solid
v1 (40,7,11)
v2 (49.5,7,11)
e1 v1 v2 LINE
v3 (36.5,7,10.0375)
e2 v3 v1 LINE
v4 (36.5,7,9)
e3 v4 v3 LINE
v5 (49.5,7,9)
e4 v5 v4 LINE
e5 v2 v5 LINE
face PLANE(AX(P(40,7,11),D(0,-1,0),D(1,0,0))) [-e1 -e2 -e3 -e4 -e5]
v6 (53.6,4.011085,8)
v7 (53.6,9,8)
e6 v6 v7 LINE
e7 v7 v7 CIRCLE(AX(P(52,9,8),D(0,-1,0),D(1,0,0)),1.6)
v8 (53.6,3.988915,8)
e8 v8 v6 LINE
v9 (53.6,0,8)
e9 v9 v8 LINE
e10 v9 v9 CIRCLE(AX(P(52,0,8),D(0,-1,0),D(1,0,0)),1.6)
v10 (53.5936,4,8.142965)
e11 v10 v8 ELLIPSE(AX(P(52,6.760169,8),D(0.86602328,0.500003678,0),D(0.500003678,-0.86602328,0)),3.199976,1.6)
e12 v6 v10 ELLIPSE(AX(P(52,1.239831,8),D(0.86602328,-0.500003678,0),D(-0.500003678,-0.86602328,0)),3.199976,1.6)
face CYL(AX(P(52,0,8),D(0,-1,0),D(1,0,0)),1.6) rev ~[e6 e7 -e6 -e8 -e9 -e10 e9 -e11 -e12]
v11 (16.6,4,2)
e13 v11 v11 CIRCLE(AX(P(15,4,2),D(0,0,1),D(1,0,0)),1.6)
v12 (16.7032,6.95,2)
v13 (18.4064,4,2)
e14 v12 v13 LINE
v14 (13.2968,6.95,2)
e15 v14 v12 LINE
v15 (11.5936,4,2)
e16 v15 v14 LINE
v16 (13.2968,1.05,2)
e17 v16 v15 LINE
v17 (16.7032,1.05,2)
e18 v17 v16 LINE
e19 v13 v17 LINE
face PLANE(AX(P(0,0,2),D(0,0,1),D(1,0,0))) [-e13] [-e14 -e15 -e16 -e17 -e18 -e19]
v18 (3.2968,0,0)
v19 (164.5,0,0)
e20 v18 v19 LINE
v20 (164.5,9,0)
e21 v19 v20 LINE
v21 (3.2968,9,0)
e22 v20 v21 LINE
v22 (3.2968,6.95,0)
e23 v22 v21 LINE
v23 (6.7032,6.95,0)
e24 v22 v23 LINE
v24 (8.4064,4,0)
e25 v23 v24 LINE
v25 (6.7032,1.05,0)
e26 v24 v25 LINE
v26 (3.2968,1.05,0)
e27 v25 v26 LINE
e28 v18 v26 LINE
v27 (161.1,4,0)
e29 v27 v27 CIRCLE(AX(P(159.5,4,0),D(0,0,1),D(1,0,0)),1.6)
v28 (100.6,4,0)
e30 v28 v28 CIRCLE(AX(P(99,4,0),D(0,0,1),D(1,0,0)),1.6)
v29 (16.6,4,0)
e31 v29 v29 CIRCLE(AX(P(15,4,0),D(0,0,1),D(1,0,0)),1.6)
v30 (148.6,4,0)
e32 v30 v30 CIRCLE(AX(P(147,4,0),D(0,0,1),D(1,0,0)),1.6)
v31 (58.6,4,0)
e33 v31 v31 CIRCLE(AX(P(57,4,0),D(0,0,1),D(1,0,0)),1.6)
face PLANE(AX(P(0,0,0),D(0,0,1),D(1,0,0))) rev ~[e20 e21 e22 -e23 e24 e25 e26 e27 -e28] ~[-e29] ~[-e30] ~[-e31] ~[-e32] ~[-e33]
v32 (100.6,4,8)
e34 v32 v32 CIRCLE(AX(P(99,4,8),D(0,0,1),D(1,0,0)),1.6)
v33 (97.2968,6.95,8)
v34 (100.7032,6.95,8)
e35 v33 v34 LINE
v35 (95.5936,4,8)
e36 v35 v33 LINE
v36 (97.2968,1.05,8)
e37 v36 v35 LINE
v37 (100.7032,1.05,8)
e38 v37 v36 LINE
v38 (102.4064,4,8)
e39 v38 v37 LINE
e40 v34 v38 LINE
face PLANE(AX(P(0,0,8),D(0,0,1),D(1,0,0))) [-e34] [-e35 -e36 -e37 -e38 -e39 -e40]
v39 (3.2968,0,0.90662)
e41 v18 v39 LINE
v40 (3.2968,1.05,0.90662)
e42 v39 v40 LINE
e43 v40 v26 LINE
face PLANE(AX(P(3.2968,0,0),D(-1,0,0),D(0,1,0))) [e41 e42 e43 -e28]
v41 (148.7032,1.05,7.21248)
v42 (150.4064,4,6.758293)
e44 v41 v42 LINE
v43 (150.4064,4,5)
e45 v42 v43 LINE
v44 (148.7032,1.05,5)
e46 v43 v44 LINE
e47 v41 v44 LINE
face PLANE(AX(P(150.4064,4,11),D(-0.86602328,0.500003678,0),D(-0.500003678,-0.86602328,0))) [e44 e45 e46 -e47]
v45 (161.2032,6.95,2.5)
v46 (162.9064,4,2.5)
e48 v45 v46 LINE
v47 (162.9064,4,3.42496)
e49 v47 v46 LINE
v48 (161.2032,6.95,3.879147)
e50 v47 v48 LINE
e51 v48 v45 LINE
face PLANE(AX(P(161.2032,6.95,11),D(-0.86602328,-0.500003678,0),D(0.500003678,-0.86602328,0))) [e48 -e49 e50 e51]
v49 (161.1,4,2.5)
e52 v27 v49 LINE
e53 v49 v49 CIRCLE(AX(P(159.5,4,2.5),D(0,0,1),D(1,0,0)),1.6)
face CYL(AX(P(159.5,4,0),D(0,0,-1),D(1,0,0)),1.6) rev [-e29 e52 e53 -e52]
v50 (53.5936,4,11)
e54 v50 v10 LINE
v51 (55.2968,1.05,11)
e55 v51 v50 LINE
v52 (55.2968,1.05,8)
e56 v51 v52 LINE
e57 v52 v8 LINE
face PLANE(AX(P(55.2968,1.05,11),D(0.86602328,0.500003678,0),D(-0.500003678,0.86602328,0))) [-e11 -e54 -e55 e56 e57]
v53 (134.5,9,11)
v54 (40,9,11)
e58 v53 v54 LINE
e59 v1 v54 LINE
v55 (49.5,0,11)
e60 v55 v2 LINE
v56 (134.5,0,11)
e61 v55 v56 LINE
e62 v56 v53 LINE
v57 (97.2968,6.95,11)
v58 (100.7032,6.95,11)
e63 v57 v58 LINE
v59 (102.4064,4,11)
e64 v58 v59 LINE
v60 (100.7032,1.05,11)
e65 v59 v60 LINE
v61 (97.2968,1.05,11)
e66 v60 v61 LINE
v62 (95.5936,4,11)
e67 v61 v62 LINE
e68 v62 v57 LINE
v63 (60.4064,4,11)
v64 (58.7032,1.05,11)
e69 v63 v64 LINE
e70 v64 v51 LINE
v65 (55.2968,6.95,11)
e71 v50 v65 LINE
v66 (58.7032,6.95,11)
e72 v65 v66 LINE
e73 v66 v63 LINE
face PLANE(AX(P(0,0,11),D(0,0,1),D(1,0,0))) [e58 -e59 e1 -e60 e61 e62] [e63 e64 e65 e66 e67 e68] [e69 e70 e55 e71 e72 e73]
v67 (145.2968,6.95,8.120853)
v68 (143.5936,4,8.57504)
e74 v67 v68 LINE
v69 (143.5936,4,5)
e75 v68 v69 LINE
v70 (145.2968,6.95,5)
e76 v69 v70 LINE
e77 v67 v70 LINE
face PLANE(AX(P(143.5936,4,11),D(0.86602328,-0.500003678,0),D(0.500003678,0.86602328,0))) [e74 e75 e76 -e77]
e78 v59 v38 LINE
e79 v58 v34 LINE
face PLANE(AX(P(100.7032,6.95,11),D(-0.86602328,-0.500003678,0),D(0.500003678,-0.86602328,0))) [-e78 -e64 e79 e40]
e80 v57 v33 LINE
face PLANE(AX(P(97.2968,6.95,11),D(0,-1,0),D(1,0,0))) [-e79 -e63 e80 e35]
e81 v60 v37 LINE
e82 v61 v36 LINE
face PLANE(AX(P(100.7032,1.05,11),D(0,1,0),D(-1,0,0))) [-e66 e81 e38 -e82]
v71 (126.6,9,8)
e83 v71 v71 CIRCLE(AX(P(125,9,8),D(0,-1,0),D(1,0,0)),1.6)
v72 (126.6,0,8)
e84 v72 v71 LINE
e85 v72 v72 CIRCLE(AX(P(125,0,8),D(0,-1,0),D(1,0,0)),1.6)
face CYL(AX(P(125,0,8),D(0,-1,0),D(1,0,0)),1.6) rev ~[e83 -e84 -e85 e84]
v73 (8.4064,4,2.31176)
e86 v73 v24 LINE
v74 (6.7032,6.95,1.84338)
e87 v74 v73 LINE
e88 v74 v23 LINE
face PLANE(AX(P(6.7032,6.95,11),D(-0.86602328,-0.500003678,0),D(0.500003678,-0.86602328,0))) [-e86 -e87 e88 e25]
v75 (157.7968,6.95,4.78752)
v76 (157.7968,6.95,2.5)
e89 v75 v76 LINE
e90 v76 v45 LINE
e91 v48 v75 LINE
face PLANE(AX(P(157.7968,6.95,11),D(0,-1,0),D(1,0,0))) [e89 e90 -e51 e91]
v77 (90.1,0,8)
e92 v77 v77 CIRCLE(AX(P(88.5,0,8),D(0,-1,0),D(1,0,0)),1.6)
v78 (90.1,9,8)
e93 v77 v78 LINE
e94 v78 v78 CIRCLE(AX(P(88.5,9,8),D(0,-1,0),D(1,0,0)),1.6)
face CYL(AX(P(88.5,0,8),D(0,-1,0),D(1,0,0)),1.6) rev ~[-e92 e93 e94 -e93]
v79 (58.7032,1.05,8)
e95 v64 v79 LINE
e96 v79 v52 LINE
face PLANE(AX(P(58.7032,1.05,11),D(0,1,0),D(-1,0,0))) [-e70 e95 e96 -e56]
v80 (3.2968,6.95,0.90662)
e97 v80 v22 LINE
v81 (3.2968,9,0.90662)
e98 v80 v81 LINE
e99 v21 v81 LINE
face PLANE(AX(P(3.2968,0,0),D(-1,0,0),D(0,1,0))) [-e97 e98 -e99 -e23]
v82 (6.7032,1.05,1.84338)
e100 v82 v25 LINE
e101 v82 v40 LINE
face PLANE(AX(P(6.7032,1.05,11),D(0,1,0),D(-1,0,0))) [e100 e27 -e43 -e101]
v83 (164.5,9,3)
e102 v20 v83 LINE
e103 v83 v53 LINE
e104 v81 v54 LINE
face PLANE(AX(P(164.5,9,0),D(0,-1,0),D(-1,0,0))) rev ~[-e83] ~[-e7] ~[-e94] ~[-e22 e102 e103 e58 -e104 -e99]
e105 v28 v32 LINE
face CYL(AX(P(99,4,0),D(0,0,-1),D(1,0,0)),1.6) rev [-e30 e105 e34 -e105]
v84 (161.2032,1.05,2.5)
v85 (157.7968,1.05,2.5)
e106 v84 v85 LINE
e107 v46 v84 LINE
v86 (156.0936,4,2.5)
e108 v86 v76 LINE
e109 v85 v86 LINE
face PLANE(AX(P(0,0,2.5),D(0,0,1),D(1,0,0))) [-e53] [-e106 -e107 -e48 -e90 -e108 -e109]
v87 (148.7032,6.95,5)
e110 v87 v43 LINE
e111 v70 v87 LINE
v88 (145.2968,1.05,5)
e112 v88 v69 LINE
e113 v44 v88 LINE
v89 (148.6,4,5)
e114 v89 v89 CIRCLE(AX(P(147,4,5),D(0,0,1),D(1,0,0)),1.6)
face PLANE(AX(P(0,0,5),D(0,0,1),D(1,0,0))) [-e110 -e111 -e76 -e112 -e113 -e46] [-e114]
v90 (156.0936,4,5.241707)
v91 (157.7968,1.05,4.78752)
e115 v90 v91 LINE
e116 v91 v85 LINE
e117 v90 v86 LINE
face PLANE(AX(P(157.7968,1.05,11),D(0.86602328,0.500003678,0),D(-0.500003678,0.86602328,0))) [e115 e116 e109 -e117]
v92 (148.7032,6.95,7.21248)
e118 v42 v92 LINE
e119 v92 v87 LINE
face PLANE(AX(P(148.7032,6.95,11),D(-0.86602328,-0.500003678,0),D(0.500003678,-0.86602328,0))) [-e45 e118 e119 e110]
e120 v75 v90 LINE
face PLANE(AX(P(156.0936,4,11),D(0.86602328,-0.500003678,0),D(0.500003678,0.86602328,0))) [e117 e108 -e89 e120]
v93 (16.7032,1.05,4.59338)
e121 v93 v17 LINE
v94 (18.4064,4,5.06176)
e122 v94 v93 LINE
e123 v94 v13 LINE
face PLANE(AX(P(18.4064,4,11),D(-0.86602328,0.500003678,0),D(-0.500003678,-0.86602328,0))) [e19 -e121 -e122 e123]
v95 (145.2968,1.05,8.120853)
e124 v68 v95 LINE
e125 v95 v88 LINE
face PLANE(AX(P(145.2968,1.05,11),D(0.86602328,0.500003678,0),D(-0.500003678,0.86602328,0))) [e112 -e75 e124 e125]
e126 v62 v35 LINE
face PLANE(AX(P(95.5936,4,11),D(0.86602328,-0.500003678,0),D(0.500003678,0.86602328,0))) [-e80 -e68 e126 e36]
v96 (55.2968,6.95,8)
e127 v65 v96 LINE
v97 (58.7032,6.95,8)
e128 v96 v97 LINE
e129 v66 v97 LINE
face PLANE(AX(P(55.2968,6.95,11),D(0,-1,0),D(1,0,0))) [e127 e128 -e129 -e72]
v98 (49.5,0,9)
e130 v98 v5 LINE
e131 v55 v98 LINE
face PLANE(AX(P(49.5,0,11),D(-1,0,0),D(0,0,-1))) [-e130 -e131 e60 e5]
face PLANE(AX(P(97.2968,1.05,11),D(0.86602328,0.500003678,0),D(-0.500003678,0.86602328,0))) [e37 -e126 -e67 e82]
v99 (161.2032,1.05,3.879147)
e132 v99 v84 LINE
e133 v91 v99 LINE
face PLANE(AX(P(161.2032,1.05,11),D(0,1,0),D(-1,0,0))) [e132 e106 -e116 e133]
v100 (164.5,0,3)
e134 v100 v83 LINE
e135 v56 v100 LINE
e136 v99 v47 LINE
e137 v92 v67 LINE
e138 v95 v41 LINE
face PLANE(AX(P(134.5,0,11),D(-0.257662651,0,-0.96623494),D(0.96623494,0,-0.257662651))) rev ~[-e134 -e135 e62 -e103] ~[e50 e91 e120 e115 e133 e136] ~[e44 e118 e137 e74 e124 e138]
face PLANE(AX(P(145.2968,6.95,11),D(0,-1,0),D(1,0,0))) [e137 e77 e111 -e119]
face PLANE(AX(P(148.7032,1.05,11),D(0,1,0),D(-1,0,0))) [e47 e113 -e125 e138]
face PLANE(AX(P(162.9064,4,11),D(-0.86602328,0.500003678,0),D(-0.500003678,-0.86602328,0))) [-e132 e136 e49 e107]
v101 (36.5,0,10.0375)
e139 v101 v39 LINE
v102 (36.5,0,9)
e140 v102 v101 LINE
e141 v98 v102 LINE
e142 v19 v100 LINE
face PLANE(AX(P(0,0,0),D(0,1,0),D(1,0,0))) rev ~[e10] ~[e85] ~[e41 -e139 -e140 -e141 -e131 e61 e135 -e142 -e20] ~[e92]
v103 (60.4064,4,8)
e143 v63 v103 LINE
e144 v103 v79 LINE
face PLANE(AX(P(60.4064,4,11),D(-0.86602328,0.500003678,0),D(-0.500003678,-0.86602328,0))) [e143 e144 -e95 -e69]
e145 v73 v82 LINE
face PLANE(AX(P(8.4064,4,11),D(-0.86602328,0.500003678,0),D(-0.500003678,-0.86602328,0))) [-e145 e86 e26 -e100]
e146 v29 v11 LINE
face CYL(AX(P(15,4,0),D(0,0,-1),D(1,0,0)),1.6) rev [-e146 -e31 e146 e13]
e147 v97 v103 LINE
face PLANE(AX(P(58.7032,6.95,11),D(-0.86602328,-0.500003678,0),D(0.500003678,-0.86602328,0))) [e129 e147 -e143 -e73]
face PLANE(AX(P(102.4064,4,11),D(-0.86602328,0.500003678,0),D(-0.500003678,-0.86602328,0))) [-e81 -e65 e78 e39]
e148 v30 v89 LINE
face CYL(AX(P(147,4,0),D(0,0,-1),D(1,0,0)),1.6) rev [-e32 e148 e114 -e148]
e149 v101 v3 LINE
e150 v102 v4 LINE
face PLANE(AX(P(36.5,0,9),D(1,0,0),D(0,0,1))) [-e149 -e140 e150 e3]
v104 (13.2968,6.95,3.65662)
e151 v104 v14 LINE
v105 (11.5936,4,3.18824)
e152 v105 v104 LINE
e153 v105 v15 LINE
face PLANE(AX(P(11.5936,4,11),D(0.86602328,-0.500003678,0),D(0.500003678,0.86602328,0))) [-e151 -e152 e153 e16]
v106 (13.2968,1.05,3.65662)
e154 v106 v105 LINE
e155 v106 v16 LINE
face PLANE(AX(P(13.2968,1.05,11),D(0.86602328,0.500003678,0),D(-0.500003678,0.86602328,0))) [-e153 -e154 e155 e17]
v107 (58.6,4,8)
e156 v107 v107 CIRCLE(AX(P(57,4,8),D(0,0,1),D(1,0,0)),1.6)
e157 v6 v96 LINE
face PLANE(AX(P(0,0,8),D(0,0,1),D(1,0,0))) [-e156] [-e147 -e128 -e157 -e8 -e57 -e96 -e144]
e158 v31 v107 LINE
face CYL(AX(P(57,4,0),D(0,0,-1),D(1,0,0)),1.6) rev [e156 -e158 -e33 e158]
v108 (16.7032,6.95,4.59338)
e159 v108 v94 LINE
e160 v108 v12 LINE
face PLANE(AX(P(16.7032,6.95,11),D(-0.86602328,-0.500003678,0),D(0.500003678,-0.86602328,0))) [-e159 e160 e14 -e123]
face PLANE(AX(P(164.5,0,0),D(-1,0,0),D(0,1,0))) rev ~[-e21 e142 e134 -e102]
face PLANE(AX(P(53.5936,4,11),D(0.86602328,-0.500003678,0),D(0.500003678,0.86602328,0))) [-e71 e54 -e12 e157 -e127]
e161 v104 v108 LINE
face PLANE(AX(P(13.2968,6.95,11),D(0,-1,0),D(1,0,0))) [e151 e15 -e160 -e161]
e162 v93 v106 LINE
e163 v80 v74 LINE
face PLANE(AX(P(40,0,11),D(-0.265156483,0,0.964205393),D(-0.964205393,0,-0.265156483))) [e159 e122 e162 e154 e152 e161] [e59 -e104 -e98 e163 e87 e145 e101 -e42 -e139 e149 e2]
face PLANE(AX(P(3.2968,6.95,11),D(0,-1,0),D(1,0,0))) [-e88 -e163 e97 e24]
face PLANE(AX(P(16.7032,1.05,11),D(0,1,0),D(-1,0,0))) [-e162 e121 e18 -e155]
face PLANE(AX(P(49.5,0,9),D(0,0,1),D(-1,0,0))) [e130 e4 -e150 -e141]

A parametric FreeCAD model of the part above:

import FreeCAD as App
import Part
import Sketcher

V = App.Vector
Q = App.Units.Quantity

doc = App.newDocument("Part")
body = doc.addObject("PartDesign::Body", "Body")

# Sketch on XY plane
sketch1 = doc.addObject("Sketcher::SketchObject", "Sketch")
body.addObject(sketch1)
sketch1.AttachmentSupport = (doc.XY_Plane, [""])
sketch1.MapMode = "FlatFace"
sketch1.addGeometry(Part.LineSegment(V(0, 9, 0), V(0, 0, 0)), False)
sketch1.addGeometry(Part.LineSegment(V(0, 0, 0), V(164.5, 0, 0)), False)
sketch1.addGeometry(Part.LineSegment(V(164.5, 0, 0), V(164.5, 9, 0)), False)
sketch1.addGeometry(Part.LineSegment(V(164.5, 9, 0), V(0, 9, 0)), False)
sketch1.addGeometry(Part.Circle(V(5, 4, 0), V(0, 0, 1), 1.6), False)
sketch1.addGeometry(Part.Circle(V(15, 4, 0), V(0, 0, 1), 1.6), False)
sketch1.addGeometry(Part.Circle(V(57, 4, 0), V(0, 0, 1), 1.6), False)
sketch1.addGeometry(Part.Circle(V(99, 4, 0), V(0, 0, 1), 1.6), False)
sketch1.addGeometry(Part.Circle(V(147, 4, 0), V(0, 0, 1), 1.6), False)
sketch1.addGeometry(Part.Circle(V(159.5, 4, 0), V(0, 0, 1), 1.6), False)
sketch1.addConstraint(Sketcher.Constraint("Coincident", 0, 2, 1, 1))
sketch1.addConstraint(Sketcher.Constraint("Coincident", 1, 2, 2, 1))
sketch1.addConstraint(Sketcher.Constraint("Coincident", 2, 2, 3, 1))
sketch1.addConstraint(Sketcher.Constraint("Coincident", 3, 2, 0, 1))
sketch1.addConstraint(Sketcher.Constraint("Vertical", 0))
sketch1.addConstraint(Sketcher.Constraint("Horizontal", 1))
sketch1.addConstraint(Sketcher.Constraint("Vertical", 2))
sketch1.addConstraint(Sketcher.Constraint("Horizontal", 3))
sketch1.addConstraint(Sketcher.Constraint("Coincident", 0, 2, -1, 1))
sketch1.addConstraint(Sketcher.Constraint("Equal", 4, 5))
sketch1.addConstraint(Sketcher.Constraint("Equal", 5, 6))
sketch1.addConstraint(Sketcher.Constraint("Equal", 6, 7))
sketch1.addConstraint(Sketcher.Constraint("Equal", 7, 8))
sketch1.addConstraint(Sketcher.Constraint("Equal", 8, 9))
sketch1.addConstraint(Sketcher.Constraint("Horizontal", 4, 3, 5, 3))
sketch1.addConstraint(Sketcher.Constraint("Horizontal", 5, 3, 6, 3))
sketch1.addConstraint(Sketcher.Constraint("Horizontal", 6, 3, 7, 3))
sketch1.addConstraint(Sketcher.Constraint("Horizontal", 7, 3, 8, 3))
sketch1.addConstraint(Sketcher.Constraint("Horizontal", 8, 3, 9, 3))
sketch1.addConstraint(Sketcher.Constraint("Diameter", 4, Q("3.2 mm")))
sketch1.addConstraint(Sketcher.Constraint("DistanceY", 0, 2, 0, 1, Q("9 mm")))
sketch1.addConstraint(Sketcher.Constraint("DistanceX", -1, 1, 4, 3, Q("5 mm")))
sketch1.addConstraint(Sketcher.Constraint("DistanceY", -1, 1, 4, 3, Q("4 mm")))
sketch1.addConstraint(Sketcher.Constraint("DistanceX", -1, 1, 5, 3, Q("15 mm")))
sketch1.addConstraint(Sketcher.Constraint("DistanceX", 5, 3, 6, 3, Q("42 mm")))
sketch1.addConstraint(Sketcher.Constraint("DistanceX", 6, 3, 7, 3, Q("42 mm")))
sketch1.addConstraint(Sketcher.Constraint("DistanceX", 7, 3, 8, 3, Q("48 mm")))
sketch1.addConstraint(Sketcher.Constraint("DistanceX", 9, 3, 1, 2, Q("5 mm")))
sketch1.addConstraint(Sketcher.Constraint("DistanceX", 8, 3, 9, 3, Q("12.5 mm")))
pad1 = doc.addObject("PartDesign::Pad", "Pad")
body.addObject(pad1)
pad1.Profile = sketch1
pad1.Length = 11

# Sketch on XZ plane
sketch2 = doc.addObject("Sketcher::SketchObject", "Sketch001")
body.addObject(sketch2)
sketch2.AttachmentSupport = (doc.XZ_Plane, [""])
sketch2.MapMode = "FlatFace"
sketch2.addGeometry(Part.Circle(V(52, 8, 0), V(0, 0, 1), 1.6), False)
sketch2.addGeometry(Part.Circle(V(125, 8, 0), V(0, 0, 1), 1.6), False)
sketch2.addGeometry(Part.Circle(V(88.5, 8, 0), V(0, 0, 1), 1.6), False)
sketch2.addConstraint(Sketcher.Constraint("Equal", 0, 1))
sketch2.addConstraint(Sketcher.Constraint("Equal", 1, 2))
sketch2.addConstraint(Sketcher.Constraint("Horizontal", 0, 3, 1, 3))
sketch2.addConstraint(Sketcher.Constraint("Horizontal", 1, 3, 2, 3))
sketch2.addConstraint(Sketcher.Constraint("Diameter", 0, Q("3.2 mm")))
sketch2.addConstraint(Sketcher.Constraint("DistanceX", -1, 1, 0, 3, Q("52 mm")))
sketch2.addConstraint(Sketcher.Constraint("DistanceY", -1, 1, 0, 3, Q("8 mm")))
sketch2.addConstraint(Sketcher.Constraint("DistanceX", 0, 3, 1, 3, Q("73 mm")))
sketch2.addConstraint(Sketcher.Constraint("DistanceX", 0, 3, 2, 3, Q("36.5 mm")))
pocket1 = doc.addObject("PartDesign::Pocket", "Pocket")
body.addObject(pocket1)
pocket1.Profile = sketch2
pocket1.Type = "UpToFirst"

# Sketch on XZ plane
sketch3 = doc.addObject("Sketcher::SketchObject", "Sketch002")
body.addObject(sketch3)
sketch3.AttachmentSupport = (doc.XZ_Plane, [""])
sketch3.MapMode = "FlatFace"
sketch3.addGeometry(Part.LineSegment(V(40, 11, 0), V(0, 11, 0)), False)
sketch3.addGeometry(Part.LineSegment(V(0, 11, 0), V(0, 0, 0)), False)
sketch3.addGeometry(Part.LineSegment(V(0, 0, 0), V(40, 11, 0)), False)
sketch3.addConstraint(Sketcher.Constraint("Coincident", 0, 2, 1, 1))
sketch3.addConstraint(Sketcher.Constraint("Coincident", 1, 2, 2, 1))
sketch3.addConstraint(Sketcher.Constraint("Coincident", 2, 2, 0, 1))
sketch3.addConstraint(Sketcher.Constraint("Horizontal", 0))
sketch3.addConstraint(Sketcher.Constraint("Vertical", 1))
sketch3.addConstraint(Sketcher.Constraint("Coincident", 1, 2, -1, 1))
sketch3.addConstraint(Sketcher.Constraint("DistanceX", 0, 2, 0, 1, Q("40 mm")))
sketch3.addConstraint(Sketcher.Constraint("DistanceY", 1, 2, 1, 1, Q("11 mm")))
pocket2 = doc.addObject("PartDesign::Pocket", "Pocket001")
body.addObject(pocket2)
pocket2.Profile = sketch3
pocket2.Type = "UpToFirst"

# Sketch on XZ plane
sketch4 = doc.addObject("Sketcher::SketchObject", "Sketch003")
body.addObject(sketch4)
sketch4.AttachmentSupport = (doc.XZ_Plane, [""])
sketch4.MapMode = "FlatFace"
sketch4.addGeometry(Part.LineSegment(V(134.5, 11, 0), V(164.5, 3, 0)), False)
sketch4.addGeometry(Part.LineSegment(V(164.5, 3, 0), V(164.5, 11, 0)), False)
sketch4.addGeometry(Part.LineSegment(V(164.5, 11, 0), V(134.5, 11, 0)), False)
sketch4.addConstraint(Sketcher.Constraint("Coincident", 0, 2, 1, 1))
sketch4.addConstraint(Sketcher.Constraint("Coincident", 1, 2, 2, 1))
sketch4.addConstraint(Sketcher.Constraint("Coincident", 2, 2, 0, 1))
sketch4.addConstraint(Sketcher.Constraint("Vertical", 1))
sketch4.addConstraint(Sketcher.Constraint("Horizontal", 2))
sketch4.addConstraint(Sketcher.Constraint("DistanceX", 2, 2, 2, 1, Q("30 mm")))
sketch4.addConstraint(Sketcher.Constraint("DistanceY", 1, 1, 1, 2, Q("8 mm")))
sketch4.addConstraint(Sketcher.Constraint("DistanceY", -1, 1, 0, 2, Q("3 mm")))
sketch4.addConstraint(Sketcher.Constraint("DistanceX", -1, 1, 0, 2, Q("164.5 mm")))
pocket3 = doc.addObject("PartDesign::Pocket", "Pocket002")
body.addObject(pocket3)
pocket3.Profile = sketch4
pocket3.Type = "UpToFirst"

# Sketch on XY plane
sketch5 = doc.addObject("Sketcher::SketchObject", "Sketch004")
body.addObject(sketch5)
sketch5.AttachmentSupport = (doc.XY_Plane, [""])
sketch5.MapMode = "FlatFace"
sketch5.AttachmentOffset = App.Placement(V(0, 0, 11), App.Rotation())
sketch5.addGeometry(Part.LineSegment(V(97.2968, 6.95, 0), V(95.5936, 4, 0)), False)
sketch5.addGeometry(Part.LineSegment(V(95.5936, 4, 0), V(97.2968, 1.05, 0)), False)
sketch5.addGeometry(Part.LineSegment(V(97.2968, 1.05, 0), V(100.7032, 1.05, 0)), False)
sketch5.addGeometry(Part.LineSegment(V(100.7032, 1.05, 0), V(102.4064, 4, 0)), False)
sketch5.addGeometry(Part.LineSegment(V(102.4064, 4, 0), V(100.7032, 6.95, 0)), False)
sketch5.addGeometry(Part.LineSegment(V(100.7032, 6.95, 0), V(97.2968, 6.95, 0)), False)
sketch5.addGeometry(Part.Circle(V(99, 4, 0), V(0, 0, 1), 1.6), False)
sketch5.addGeometry(Part.LineSegment(V(58.7032, 1.05, 0), V(60.4064, 4, 0)), False)
sketch5.addGeometry(Part.LineSegment(V(60.4064, 4, 0), V(58.7032, 6.95, 0)), False)
sketch5.addGeometry(Part.LineSegment(V(58.7032, 6.95, 0), V(55.2968, 6.95, 0)), False)
sketch5.addGeometry(Part.LineSegment(V(55.2968, 6.95, 0), V(53.5936, 4, 0)), False)
sketch5.addGeometry(Part.LineSegment(V(53.5936, 4, 0), V(55.2968, 1.05, 0)), False)
sketch5.addGeometry(Part.LineSegment(V(55.2968, 1.05, 0), V(58.7032, 1.05, 0)), False)
sketch5.addGeometry(Part.Circle(V(57, 4, 0), V(0, 0, 1), 1.6), False)
sketch5.addConstraint(Sketcher.Constraint("Coincident", 0, 2, 1, 1))
sketch5.addConstraint(Sketcher.Constraint("Coincident", 1, 2, 2, 1))
sketch5.addConstraint(Sketcher.Constraint("Coincident", 2, 2, 3, 1))
sketch5.addConstraint(Sketcher.Constraint("Coincident", 3, 2, 4, 1))
sketch5.addConstraint(Sketcher.Constraint("Coincident", 4, 2, 5, 1))
sketch5.addConstraint(Sketcher.Constraint("Coincident", 5, 2, 0, 1))
sketch5.addConstraint(Sketcher.Constraint("Coincident", 7, 2, 8, 1))
sketch5.addConstraint(Sketcher.Constraint("Coincident", 8, 2, 9, 1))
sketch5.addConstraint(Sketcher.Constraint("Coincident", 9, 2, 10, 1))
sketch5.addConstraint(Sketcher.Constraint("Coincident", 10, 2, 11, 1))
sketch5.addConstraint(Sketcher.Constraint("Coincident", 11, 2, 12, 1))
sketch5.addConstraint(Sketcher.Constraint("Coincident", 12, 2, 7, 1))
sketch5.addConstraint(Sketcher.Constraint("Horizontal", 2))
sketch5.addConstraint(Sketcher.Constraint("Horizontal", 5))
sketch5.addConstraint(Sketcher.Constraint("Horizontal", 9))
sketch5.addConstraint(Sketcher.Constraint("Horizontal", 12))
sketch5.addConstraint(Sketcher.Constraint("Equal", 6, 13))
sketch5.addConstraint(Sketcher.Constraint("Parallel", 0, 3))
sketch5.addConstraint(Sketcher.Constraint("Parallel", 1, 4))
sketch5.addConstraint(Sketcher.Constraint("Parallel", 3, 7))
sketch5.addConstraint(Sketcher.Constraint("Parallel", 4, 8))
sketch5.addConstraint(Sketcher.Constraint("Parallel", 7, 10))
sketch5.addConstraint(Sketcher.Constraint("Parallel", 8, 11))
sketch5.addConstraint(Sketcher.Constraint("Horizontal", 6, 3, 13, 3))
sketch5.addConstraint(Sketcher.Constraint("Horizontal", 13, 3, 0, 2))
sketch5.addConstraint(Sketcher.Constraint("Horizontal", 0, 2, 3, 2))
sketch5.addConstraint(Sketcher.Constraint("Horizontal", 3, 2, 7, 2))
sketch5.addConstraint(Sketcher.Constraint("Horizontal", 5, 2, 8, 2))
sketch5.addConstraint(Sketcher.Constraint("Horizontal", 7, 2, 10, 2))
sketch5.addConstraint(Sketcher.Constraint("Horizontal", 2, 2, 11, 2))
sketch5.addConstraint(Sketcher.Constraint("Vertical", 2, 2, 4, 2))
sketch5.addConstraint(Sketcher.Constraint("Vertical", 1, 2, 5, 2))
sketch5.addConstraint(Sketcher.Constraint("Equal", 5, 9))
sketch5.addConstraint(Sketcher.Constraint("Diameter", 6, Q("3.2 mm")))
sketch5.addConstraint(Sketcher.Constraint("DistanceY", 2, 2, 4, 2, Q("5.9 mm")))
sketch5.addConstraint(Sketcher.Constraint("Angle", 0, Q("-120.0002 deg")))
sketch5.addConstraint(Sketcher.Constraint("DistanceX", -1, 1, 6, 3, Q("99 mm")))
sketch5.addConstraint(Sketcher.Constraint("DistanceY", -1, 1, 6, 3, Q("4 mm")))
sketch5.addConstraint(Sketcher.Constraint("DistanceX", -1, 1, 13, 3, Q("57 mm")))
sketch5.addConstraint(Sketcher.Constraint("DistanceX", 9, 2, 5, 2, Q("42 mm")))
sketch5.addConstraint(Sketcher.Constraint("DistanceX", 2, 1, 2, 2, Q("3.4064 mm")))
sketch5.addConstraint(Sketcher.Constraint("DistanceX", -1, 1, 0, 2, Q("95.5936 mm")))
pocket4 = doc.addObject("PartDesign::Pocket", "Pocket003")
body.addObject(pocket4)
pocket4.Profile = sketch5
pocket4.Length = 3

# Sketch on XY plane
sketch6 = doc.addObject("Sketcher::SketchObject", "Sketch005")
body.addObject(sketch6)
sketch6.AttachmentSupport = (doc.XY_Plane, [""])
sketch6.MapMode = "FlatFace"
sketch6.AttachmentOffset = App.Placement(V(0, 0, 11), App.Rotation())
sketch6.addGeometry(Part.LineSegment(V(148.7032, 1.05, 0), V(150.4064, 4, 0)), False)
sketch6.addGeometry(Part.LineSegment(V(150.4064, 4, 0), V(148.7032, 6.95, 0)), False)
sketch6.addGeometry(Part.LineSegment(V(148.7032, 6.95, 0), V(145.2968, 6.95, 0)), False)
sketch6.addGeometry(Part.LineSegment(V(145.2968, 6.95, 0), V(143.5936, 4, 0)), False)
sketch6.addGeometry(Part.LineSegment(V(143.5936, 4, 0), V(145.2968, 1.05, 0)), False)
sketch6.addGeometry(Part.LineSegment(V(145.2968, 1.05, 0), V(148.7032, 1.05, 0)), False)
sketch6.addGeometry(Part.Circle(V(147, 4, 0), V(0, 0, 1), 1.6), False)
sketch6.addConstraint(Sketcher.Constraint("Coincident", 0, 2, 1, 1))
sketch6.addConstraint(Sketcher.Constraint("Coincident", 1, 2, 2, 1))
sketch6.addConstraint(Sketcher.Constraint("Coincident", 2, 2, 3, 1))
sketch6.addConstraint(Sketcher.Constraint("Coincident", 3, 2, 4, 1))
sketch6.addConstraint(Sketcher.Constraint("Coincident", 4, 2, 5, 1))
sketch6.addConstraint(Sketcher.Constraint("Coincident", 5, 2, 0, 1))
sketch6.addConstraint(Sketcher.Constraint("Horizontal", 2))
sketch6.addConstraint(Sketcher.Constraint("Horizontal", 5))
sketch6.addConstraint(Sketcher.Constraint("Parallel", 0, 3))
sketch6.addConstraint(Sketcher.Constraint("Parallel", 1, 4))
sketch6.addConstraint(Sketcher.Constraint("Horizontal", 6, 3, 0, 2))
sketch6.addConstraint(Sketcher.Constraint("Horizontal", 0, 2, 3, 2))
sketch6.addConstraint(Sketcher.Constraint("Vertical", 2, 2, 4, 2))
sketch6.addConstraint(Sketcher.Constraint("Vertical", 1, 2, 5, 2))
sketch6.addConstraint(Sketcher.Constraint("Diameter", 6, Q("3.2 mm")))
sketch6.addConstraint(Sketcher.Constraint("DistanceY", 4, 2, 2, 2, Q("5.9 mm")))
sketch6.addConstraint(Sketcher.Constraint("Angle", 0, Q("59.9998 deg")))
sketch6.addConstraint(Sketcher.Constraint("DistanceX", -1, 1, 6, 3, Q("147 mm")))
sketch6.addConstraint(Sketcher.Constraint("DistanceY", -1, 1, 6, 3, Q("4 mm")))
sketch6.addConstraint(Sketcher.Constraint("DistanceX", 2, 2, 2, 1, Q("3.4064 mm")))
sketch6.addConstraint(Sketcher.Constraint("DistanceX", -1, 1, 0, 2, Q("150.4064 mm")))
pocket5 = doc.addObject("PartDesign::Pocket", "Pocket004")
body.addObject(pocket5)
pocket5.Profile = sketch6
pocket5.Length = 6

# Sketch on XY plane
sketch7 = doc.addObject("Sketcher::SketchObject", "Sketch006")
body.addObject(sketch7)
sketch7.AttachmentSupport = (doc.XY_Plane, [""])
sketch7.MapMode = "FlatFace"
sketch7.AttachmentOffset = App.Placement(V(0, 0, 11), App.Rotation())
sketch7.addGeometry(Part.LineSegment(V(161.2032, 1.05, 0), V(162.9064, 4, 0)), False)
sketch7.addGeometry(Part.LineSegment(V(162.9064, 4, 0), V(161.2032, 6.95, 0)), False)
sketch7.addGeometry(Part.LineSegment(V(161.2032, 6.95, 0), V(157.7968, 6.95, 0)), False)
sketch7.addGeometry(Part.LineSegment(V(157.7968, 6.95, 0), V(156.0936, 4, 0)), False)
sketch7.addGeometry(Part.LineSegment(V(156.0936, 4, 0), V(157.7968, 1.05, 0)), False)
sketch7.addGeometry(Part.LineSegment(V(157.7968, 1.05, 0), V(161.2032, 1.05, 0)), False)
sketch7.addGeometry(Part.Circle(V(159.5, 4, 0), V(0, 0, 1), 1.6), False)
sketch7.addConstraint(Sketcher.Constraint("Coincident", 0, 2, 1, 1))
sketch7.addConstraint(Sketcher.Constraint("Coincident", 1, 2, 2, 1))
sketch7.addConstraint(Sketcher.Constraint("Coincident", 2, 2, 3, 1))
sketch7.addConstraint(Sketcher.Constraint("Coincident", 3, 2, 4, 1))
sketch7.addConstraint(Sketcher.Constraint("Coincident", 4, 2, 5, 1))
sketch7.addConstraint(Sketcher.Constraint("Coincident", 5, 2, 0, 1))
sketch7.addConstraint(Sketcher.Constraint("Horizontal", 2))
sketch7.addConstraint(Sketcher.Constraint("Horizontal", 5))
sketch7.addConstraint(Sketcher.Constraint("Parallel", 0, 3))
sketch7.addConstraint(Sketcher.Constraint("Parallel", 1, 4))
sketch7.addConstraint(Sketcher.Constraint("Horizontal", 6, 3, 0, 2))
sketch7.addConstraint(Sketcher.Constraint("Horizontal", 0, 2, 3, 2))
sketch7.addConstraint(Sketcher.Constraint("Vertical", 2, 2, 4, 2))
sketch7.addConstraint(Sketcher.Constraint("Vertical", 1, 2, 5, 2))
sketch7.addConstraint(Sketcher.Constraint("Diameter", 6, Q("3.2 mm")))
sketch7.addConstraint(Sketcher.Constraint("DistanceY", 4, 2, 2, 2, Q("5.9 mm")))
sketch7.addConstraint(Sketcher.Constraint("Angle", 0, Q("59.9998 deg")))
sketch7.addConstraint(Sketcher.Constraint("DistanceY", -1, 1, 6, 3, Q("4 mm")))
sketch7.addConstraint(Sketcher.Constraint("DistanceX", -1, 1, 6, 3, Q("159.5 mm")))
sketch7.addConstraint(Sketcher.Constraint("DistanceX", 2, 2, 2, 1, Q("3.4064 mm")))
sketch7.addConstraint(Sketcher.Constraint("DistanceX", -1, 1, 0, 2, Q("162.9064 mm")))
pocket6 = doc.addObject("PartDesign::Pocket", "Pocket005")
body.addObject(pocket6)
pocket6.Profile = sketch7
pocket6.Length = 8.5

# Sketch on XY plane
sketch8 = doc.addObject("Sketcher::SketchObject", "Sketch007")
body.addObject(sketch8)
sketch8.AttachmentSupport = (doc.XY_Plane, [""])
sketch8.MapMode = "FlatFace"
sketch8.AttachmentOffset = App.Placement(V(0, 0, 11), App.Rotation())
sketch8.addGeometry(Part.LineSegment(V(6.7032, 1.05, 0), V(8.4064, 4, 0)), False)
sketch8.addGeometry(Part.LineSegment(V(8.4064, 4, 0), V(6.7032, 6.95, 0)), False)
sketch8.addGeometry(Part.LineSegment(V(6.7032, 6.95, 0), V(3.2968, 6.95, 0)), False)
sketch8.addGeometry(Part.LineSegment(V(3.2968, 6.95, 0), V(1.5936, 4, 0)), False)
sketch8.addGeometry(Part.LineSegment(V(1.5936, 4, 0), V(3.2968, 1.05, 0)), False)
sketch8.addGeometry(Part.LineSegment(V(3.2968, 1.05, 0), V(6.7032, 1.05, 0)), False)
sketch8.addGeometry(Part.Circle(V(5, 4, 0), V(0, 0, 1), 1.6), False)
sketch8.addConstraint(Sketcher.Constraint("Coincident", 0, 2, 1, 1))
sketch8.addConstraint(Sketcher.Constraint("Coincident", 1, 2, 2, 1))
sketch8.addConstraint(Sketcher.Constraint("Coincident", 2, 2, 3, 1))
sketch8.addConstraint(Sketcher.Constraint("Coincident", 3, 2, 4, 1))
sketch8.addConstraint(Sketcher.Constraint("Coincident", 4, 2, 5, 1))
sketch8.addConstraint(Sketcher.Constraint("Coincident", 5, 2, 0, 1))
sketch8.addConstraint(Sketcher.Constraint("Horizontal", 2))
sketch8.addConstraint(Sketcher.Constraint("Horizontal", 5))
sketch8.addConstraint(Sketcher.Constraint("Parallel", 0, 3))
sketch8.addConstraint(Sketcher.Constraint("Parallel", 1, 4))
sketch8.addConstraint(Sketcher.Constraint("Horizontal", 6, 3, 0, 2))
sketch8.addConstraint(Sketcher.Constraint("Horizontal", 0, 2, 3, 2))
sketch8.addConstraint(Sketcher.Constraint("Vertical", 2, 2, 4, 2))
sketch8.addConstraint(Sketcher.Constraint("Vertical", 1, 2, 5, 2))
sketch8.addConstraint(Sketcher.Constraint("Diameter", 6, Q("3.2 mm")))
sketch8.addConstraint(Sketcher.Constraint("DistanceY", 4, 2, 2, 2, Q("5.9 mm")))
sketch8.addConstraint(Sketcher.Constraint("Angle", 0, Q("59.9998 deg")))
sketch8.addConstraint(Sketcher.Constraint("DistanceX", -1, 1, 6, 3, Q("5 mm")))
sketch8.addConstraint(Sketcher.Constraint("DistanceY", -1, 1, 6, 3, Q("4 mm")))
sketch8.addConstraint(Sketcher.Constraint("DistanceX", 2, 2, 2, 1, Q("3.4064 mm")))
sketch8.addConstraint(Sketcher.Constraint("DistanceX", -1, 1, 0, 2, Q("8.4064 mm")))
pocket7 = doc.addObject("PartDesign::Pocket", "Pocket006")
body.addObject(pocket7)
pocket7.Profile = sketch8
pocket7.Type = "ThroughAll"

# Sketch on XY plane
sketch9 = doc.addObject("Sketcher::SketchObject", "Sketch008")
body.addObject(sketch9)
sketch9.AttachmentSupport = (doc.XY_Plane, [""])
sketch9.MapMode = "FlatFace"
sketch9.AttachmentOffset = App.Placement(V(0, 0, 11), App.Rotation())
sketch9.addGeometry(Part.LineSegment(V(16.7032, 1.05, 0), V(18.4064, 4, 0)), False)
sketch9.addGeometry(Part.LineSegment(V(18.4064, 4, 0), V(16.7032, 6.95, 0)), False)
sketch9.addGeometry(Part.LineSegment(V(16.7032, 6.95, 0), V(13.2968, 6.95, 0)), False)
sketch9.addGeometry(Part.LineSegment(V(13.2968, 6.95, 0), V(11.5936, 4, 0)), False)
sketch9.addGeometry(Part.LineSegment(V(11.5936, 4, 0), V(13.2968, 1.05, 0)), False)
sketch9.addGeometry(Part.LineSegment(V(13.2968, 1.05, 0), V(16.7032, 1.05, 0)), False)
sketch9.addGeometry(Part.Circle(V(15, 4, 0), V(0, 0, 1), 1.6), False)
sketch9.addConstraint(Sketcher.Constraint("Coincident", 0, 2, 1, 1))
sketch9.addConstraint(Sketcher.Constraint("Coincident", 1, 2, 2, 1))
sketch9.addConstraint(Sketcher.Constraint("Coincident", 2, 2, 3, 1))
sketch9.addConstraint(Sketcher.Constraint("Coincident", 3, 2, 4, 1))
sketch9.addConstraint(Sketcher.Constraint("Coincident", 4, 2, 5, 1))
sketch9.addConstraint(Sketcher.Constraint("Coincident", 5, 2, 0, 1))
sketch9.addConstraint(Sketcher.Constraint("Horizontal", 2))
sketch9.addConstraint(Sketcher.Constraint("Horizontal", 5))
sketch9.addConstraint(Sketcher.Constraint("Parallel", 0, 3))
sketch9.addConstraint(Sketcher.Constraint("Parallel", 1, 4))
sketch9.addConstraint(Sketcher.Constraint("Horizontal", 6, 3, 0, 2))
sketch9.addConstraint(Sketcher.Constraint("Horizontal", 0, 2, 3, 2))
sketch9.addConstraint(Sketcher.Constraint("Vertical", 2, 2, 4, 2))
sketch9.addConstraint(Sketcher.Constraint("Vertical", 1, 2, 5, 2))
sketch9.addConstraint(Sketcher.Constraint("Diameter", 6, Q("3.2 mm")))
sketch9.addConstraint(Sketcher.Constraint("DistanceY", 4, 2, 2, 2, Q("5.9 mm")))
sketch9.addConstraint(Sketcher.Constraint("Angle", 0, Q("59.9998 deg")))
sketch9.addConstraint(Sketcher.Constraint("DistanceX", -1, 1, 6, 3, Q("15 mm")))
sketch9.addConstraint(Sketcher.Constraint("DistanceY", -1, 1, 6, 3, Q("4 mm")))
sketch9.addConstraint(Sketcher.Constraint("DistanceX", 2, 2, 2, 1, Q("3.4064 mm")))
sketch9.addConstraint(Sketcher.Constraint("DistanceX", -1, 1, 0, 2, Q("18.4064 mm")))
pocket8 = doc.addObject("PartDesign::Pocket", "Pocket007")
body.addObject(pocket8)
pocket8.Profile = sketch9
pocket8.Length = 9

# Sketch on XY plane
sketch10 = doc.addObject("Sketcher::SketchObject", "Sketch009")
body.addObject(sketch10)
sketch10.AttachmentSupport = (doc.XY_Plane, [""])
sketch10.MapMode = "FlatFace"
sketch10.addGeometry(Part.LineSegment(V(0, 0, 0), V(0, 10.0042, 0)), False)
sketch10.addGeometry(Part.LineSegment(V(0, 10.0042, 0), V(3.2968, 10.0042, 0)), False)
sketch10.addGeometry(Part.LineSegment(V(3.2968, 10.0042, 0), V(3.2968, 0, 0)), False)
sketch10.addGeometry(Part.LineSegment(V(3.2968, 0, 0), V(0, 0, 0)), False)
sketch10.addConstraint(Sketcher.Constraint("Coincident", 0, 2, 1, 1))
sketch10.addConstraint(Sketcher.Constraint("Coincident", 1, 2, 2, 1))
sketch10.addConstraint(Sketcher.Constraint("Coincident", 2, 2, 3, 1))
sketch10.addConstraint(Sketcher.Constraint("Coincident", 3, 2, 0, 1))
sketch10.addConstraint(Sketcher.Constraint("Vertical", 0))
sketch10.addConstraint(Sketcher.Constraint("Horizontal", 1))
sketch10.addConstraint(Sketcher.Constraint("Vertical", 2))
sketch10.addConstraint(Sketcher.Constraint("Horizontal", 3))
sketch10.addConstraint(Sketcher.Constraint("Coincident", 3, 2, -1, 1))
sketch10.addConstraint(Sketcher.Constraint("DistanceX", 1, 1, 1, 2, Q("3.2968 mm")))
sketch10.addConstraint(Sketcher.Constraint("DistanceY", 0, 1, 0, 2, Q("10.0042 mm")))
pocket9 = doc.addObject("PartDesign::Pocket", "Pocket008")
body.addObject(pocket9)
pocket9.Profile = sketch10
pocket9.Length = 0.9066
pocket9.Reversed = True

# Sketch on XZ plane
sketch11 = doc.addObject("Sketcher::SketchObject", "Sketch010")
body.addObject(sketch11)
sketch11.AttachmentSupport = (doc.XZ_Plane, [""])
sketch11.MapMode = "FlatFace"
sketch11.addGeometry(Part.LineSegment(V(49.5, 9, 0), V(49.5, 11, 0)), False)
sketch11.addGeometry(Part.LineSegment(V(49.5, 11, 0), V(36.5, 11, 0)), False)
sketch11.addGeometry(Part.LineSegment(V(36.5, 11, 0), V(36.5, 9, 0)), False)
sketch11.addGeometry(Part.LineSegment(V(36.5, 9, 0), V(49.5, 9, 0)), False)
sketch11.addConstraint(Sketcher.Constraint("Coincident", 0, 2, 1, 1))
sketch11.addConstraint(Sketcher.Constraint("Coincident", 1, 2, 2, 1))
sketch11.addConstraint(Sketcher.Constraint("Coincident", 2, 2, 3, 1))
sketch11.addConstraint(Sketcher.Constraint("Coincident", 3, 2, 0, 1))
sketch11.addConstraint(Sketcher.Constraint("Vertical", 0))
sketch11.addConstraint(Sketcher.Constraint("Horizontal", 1))
sketch11.addConstraint(Sketcher.Constraint("Vertical", 2))
sketch11.addConstraint(Sketcher.Constraint("Horizontal", 3))
sketch11.addConstraint(Sketcher.Constraint("DistanceX", 1, 2, 1, 1, Q("13 mm")))
sketch11.addConstraint(Sketcher.Constraint("DistanceY", 0, 1, 0, 2, Q("2 mm")))
sketch11.addConstraint(Sketcher.Constraint("DistanceY", -1, 1, 0, 2, Q("11 mm")))
sketch11.addConstraint(Sketcher.Constraint("DistanceX", -1, 1, 0, 2, Q("49.5 mm")))
pocket10 = doc.addObject("PartDesign::Pocket", "Pocket009")
body.addObject(pocket10)
pocket10.Profile = sketch11
pocket10.Length = 7

doc.recompute()
